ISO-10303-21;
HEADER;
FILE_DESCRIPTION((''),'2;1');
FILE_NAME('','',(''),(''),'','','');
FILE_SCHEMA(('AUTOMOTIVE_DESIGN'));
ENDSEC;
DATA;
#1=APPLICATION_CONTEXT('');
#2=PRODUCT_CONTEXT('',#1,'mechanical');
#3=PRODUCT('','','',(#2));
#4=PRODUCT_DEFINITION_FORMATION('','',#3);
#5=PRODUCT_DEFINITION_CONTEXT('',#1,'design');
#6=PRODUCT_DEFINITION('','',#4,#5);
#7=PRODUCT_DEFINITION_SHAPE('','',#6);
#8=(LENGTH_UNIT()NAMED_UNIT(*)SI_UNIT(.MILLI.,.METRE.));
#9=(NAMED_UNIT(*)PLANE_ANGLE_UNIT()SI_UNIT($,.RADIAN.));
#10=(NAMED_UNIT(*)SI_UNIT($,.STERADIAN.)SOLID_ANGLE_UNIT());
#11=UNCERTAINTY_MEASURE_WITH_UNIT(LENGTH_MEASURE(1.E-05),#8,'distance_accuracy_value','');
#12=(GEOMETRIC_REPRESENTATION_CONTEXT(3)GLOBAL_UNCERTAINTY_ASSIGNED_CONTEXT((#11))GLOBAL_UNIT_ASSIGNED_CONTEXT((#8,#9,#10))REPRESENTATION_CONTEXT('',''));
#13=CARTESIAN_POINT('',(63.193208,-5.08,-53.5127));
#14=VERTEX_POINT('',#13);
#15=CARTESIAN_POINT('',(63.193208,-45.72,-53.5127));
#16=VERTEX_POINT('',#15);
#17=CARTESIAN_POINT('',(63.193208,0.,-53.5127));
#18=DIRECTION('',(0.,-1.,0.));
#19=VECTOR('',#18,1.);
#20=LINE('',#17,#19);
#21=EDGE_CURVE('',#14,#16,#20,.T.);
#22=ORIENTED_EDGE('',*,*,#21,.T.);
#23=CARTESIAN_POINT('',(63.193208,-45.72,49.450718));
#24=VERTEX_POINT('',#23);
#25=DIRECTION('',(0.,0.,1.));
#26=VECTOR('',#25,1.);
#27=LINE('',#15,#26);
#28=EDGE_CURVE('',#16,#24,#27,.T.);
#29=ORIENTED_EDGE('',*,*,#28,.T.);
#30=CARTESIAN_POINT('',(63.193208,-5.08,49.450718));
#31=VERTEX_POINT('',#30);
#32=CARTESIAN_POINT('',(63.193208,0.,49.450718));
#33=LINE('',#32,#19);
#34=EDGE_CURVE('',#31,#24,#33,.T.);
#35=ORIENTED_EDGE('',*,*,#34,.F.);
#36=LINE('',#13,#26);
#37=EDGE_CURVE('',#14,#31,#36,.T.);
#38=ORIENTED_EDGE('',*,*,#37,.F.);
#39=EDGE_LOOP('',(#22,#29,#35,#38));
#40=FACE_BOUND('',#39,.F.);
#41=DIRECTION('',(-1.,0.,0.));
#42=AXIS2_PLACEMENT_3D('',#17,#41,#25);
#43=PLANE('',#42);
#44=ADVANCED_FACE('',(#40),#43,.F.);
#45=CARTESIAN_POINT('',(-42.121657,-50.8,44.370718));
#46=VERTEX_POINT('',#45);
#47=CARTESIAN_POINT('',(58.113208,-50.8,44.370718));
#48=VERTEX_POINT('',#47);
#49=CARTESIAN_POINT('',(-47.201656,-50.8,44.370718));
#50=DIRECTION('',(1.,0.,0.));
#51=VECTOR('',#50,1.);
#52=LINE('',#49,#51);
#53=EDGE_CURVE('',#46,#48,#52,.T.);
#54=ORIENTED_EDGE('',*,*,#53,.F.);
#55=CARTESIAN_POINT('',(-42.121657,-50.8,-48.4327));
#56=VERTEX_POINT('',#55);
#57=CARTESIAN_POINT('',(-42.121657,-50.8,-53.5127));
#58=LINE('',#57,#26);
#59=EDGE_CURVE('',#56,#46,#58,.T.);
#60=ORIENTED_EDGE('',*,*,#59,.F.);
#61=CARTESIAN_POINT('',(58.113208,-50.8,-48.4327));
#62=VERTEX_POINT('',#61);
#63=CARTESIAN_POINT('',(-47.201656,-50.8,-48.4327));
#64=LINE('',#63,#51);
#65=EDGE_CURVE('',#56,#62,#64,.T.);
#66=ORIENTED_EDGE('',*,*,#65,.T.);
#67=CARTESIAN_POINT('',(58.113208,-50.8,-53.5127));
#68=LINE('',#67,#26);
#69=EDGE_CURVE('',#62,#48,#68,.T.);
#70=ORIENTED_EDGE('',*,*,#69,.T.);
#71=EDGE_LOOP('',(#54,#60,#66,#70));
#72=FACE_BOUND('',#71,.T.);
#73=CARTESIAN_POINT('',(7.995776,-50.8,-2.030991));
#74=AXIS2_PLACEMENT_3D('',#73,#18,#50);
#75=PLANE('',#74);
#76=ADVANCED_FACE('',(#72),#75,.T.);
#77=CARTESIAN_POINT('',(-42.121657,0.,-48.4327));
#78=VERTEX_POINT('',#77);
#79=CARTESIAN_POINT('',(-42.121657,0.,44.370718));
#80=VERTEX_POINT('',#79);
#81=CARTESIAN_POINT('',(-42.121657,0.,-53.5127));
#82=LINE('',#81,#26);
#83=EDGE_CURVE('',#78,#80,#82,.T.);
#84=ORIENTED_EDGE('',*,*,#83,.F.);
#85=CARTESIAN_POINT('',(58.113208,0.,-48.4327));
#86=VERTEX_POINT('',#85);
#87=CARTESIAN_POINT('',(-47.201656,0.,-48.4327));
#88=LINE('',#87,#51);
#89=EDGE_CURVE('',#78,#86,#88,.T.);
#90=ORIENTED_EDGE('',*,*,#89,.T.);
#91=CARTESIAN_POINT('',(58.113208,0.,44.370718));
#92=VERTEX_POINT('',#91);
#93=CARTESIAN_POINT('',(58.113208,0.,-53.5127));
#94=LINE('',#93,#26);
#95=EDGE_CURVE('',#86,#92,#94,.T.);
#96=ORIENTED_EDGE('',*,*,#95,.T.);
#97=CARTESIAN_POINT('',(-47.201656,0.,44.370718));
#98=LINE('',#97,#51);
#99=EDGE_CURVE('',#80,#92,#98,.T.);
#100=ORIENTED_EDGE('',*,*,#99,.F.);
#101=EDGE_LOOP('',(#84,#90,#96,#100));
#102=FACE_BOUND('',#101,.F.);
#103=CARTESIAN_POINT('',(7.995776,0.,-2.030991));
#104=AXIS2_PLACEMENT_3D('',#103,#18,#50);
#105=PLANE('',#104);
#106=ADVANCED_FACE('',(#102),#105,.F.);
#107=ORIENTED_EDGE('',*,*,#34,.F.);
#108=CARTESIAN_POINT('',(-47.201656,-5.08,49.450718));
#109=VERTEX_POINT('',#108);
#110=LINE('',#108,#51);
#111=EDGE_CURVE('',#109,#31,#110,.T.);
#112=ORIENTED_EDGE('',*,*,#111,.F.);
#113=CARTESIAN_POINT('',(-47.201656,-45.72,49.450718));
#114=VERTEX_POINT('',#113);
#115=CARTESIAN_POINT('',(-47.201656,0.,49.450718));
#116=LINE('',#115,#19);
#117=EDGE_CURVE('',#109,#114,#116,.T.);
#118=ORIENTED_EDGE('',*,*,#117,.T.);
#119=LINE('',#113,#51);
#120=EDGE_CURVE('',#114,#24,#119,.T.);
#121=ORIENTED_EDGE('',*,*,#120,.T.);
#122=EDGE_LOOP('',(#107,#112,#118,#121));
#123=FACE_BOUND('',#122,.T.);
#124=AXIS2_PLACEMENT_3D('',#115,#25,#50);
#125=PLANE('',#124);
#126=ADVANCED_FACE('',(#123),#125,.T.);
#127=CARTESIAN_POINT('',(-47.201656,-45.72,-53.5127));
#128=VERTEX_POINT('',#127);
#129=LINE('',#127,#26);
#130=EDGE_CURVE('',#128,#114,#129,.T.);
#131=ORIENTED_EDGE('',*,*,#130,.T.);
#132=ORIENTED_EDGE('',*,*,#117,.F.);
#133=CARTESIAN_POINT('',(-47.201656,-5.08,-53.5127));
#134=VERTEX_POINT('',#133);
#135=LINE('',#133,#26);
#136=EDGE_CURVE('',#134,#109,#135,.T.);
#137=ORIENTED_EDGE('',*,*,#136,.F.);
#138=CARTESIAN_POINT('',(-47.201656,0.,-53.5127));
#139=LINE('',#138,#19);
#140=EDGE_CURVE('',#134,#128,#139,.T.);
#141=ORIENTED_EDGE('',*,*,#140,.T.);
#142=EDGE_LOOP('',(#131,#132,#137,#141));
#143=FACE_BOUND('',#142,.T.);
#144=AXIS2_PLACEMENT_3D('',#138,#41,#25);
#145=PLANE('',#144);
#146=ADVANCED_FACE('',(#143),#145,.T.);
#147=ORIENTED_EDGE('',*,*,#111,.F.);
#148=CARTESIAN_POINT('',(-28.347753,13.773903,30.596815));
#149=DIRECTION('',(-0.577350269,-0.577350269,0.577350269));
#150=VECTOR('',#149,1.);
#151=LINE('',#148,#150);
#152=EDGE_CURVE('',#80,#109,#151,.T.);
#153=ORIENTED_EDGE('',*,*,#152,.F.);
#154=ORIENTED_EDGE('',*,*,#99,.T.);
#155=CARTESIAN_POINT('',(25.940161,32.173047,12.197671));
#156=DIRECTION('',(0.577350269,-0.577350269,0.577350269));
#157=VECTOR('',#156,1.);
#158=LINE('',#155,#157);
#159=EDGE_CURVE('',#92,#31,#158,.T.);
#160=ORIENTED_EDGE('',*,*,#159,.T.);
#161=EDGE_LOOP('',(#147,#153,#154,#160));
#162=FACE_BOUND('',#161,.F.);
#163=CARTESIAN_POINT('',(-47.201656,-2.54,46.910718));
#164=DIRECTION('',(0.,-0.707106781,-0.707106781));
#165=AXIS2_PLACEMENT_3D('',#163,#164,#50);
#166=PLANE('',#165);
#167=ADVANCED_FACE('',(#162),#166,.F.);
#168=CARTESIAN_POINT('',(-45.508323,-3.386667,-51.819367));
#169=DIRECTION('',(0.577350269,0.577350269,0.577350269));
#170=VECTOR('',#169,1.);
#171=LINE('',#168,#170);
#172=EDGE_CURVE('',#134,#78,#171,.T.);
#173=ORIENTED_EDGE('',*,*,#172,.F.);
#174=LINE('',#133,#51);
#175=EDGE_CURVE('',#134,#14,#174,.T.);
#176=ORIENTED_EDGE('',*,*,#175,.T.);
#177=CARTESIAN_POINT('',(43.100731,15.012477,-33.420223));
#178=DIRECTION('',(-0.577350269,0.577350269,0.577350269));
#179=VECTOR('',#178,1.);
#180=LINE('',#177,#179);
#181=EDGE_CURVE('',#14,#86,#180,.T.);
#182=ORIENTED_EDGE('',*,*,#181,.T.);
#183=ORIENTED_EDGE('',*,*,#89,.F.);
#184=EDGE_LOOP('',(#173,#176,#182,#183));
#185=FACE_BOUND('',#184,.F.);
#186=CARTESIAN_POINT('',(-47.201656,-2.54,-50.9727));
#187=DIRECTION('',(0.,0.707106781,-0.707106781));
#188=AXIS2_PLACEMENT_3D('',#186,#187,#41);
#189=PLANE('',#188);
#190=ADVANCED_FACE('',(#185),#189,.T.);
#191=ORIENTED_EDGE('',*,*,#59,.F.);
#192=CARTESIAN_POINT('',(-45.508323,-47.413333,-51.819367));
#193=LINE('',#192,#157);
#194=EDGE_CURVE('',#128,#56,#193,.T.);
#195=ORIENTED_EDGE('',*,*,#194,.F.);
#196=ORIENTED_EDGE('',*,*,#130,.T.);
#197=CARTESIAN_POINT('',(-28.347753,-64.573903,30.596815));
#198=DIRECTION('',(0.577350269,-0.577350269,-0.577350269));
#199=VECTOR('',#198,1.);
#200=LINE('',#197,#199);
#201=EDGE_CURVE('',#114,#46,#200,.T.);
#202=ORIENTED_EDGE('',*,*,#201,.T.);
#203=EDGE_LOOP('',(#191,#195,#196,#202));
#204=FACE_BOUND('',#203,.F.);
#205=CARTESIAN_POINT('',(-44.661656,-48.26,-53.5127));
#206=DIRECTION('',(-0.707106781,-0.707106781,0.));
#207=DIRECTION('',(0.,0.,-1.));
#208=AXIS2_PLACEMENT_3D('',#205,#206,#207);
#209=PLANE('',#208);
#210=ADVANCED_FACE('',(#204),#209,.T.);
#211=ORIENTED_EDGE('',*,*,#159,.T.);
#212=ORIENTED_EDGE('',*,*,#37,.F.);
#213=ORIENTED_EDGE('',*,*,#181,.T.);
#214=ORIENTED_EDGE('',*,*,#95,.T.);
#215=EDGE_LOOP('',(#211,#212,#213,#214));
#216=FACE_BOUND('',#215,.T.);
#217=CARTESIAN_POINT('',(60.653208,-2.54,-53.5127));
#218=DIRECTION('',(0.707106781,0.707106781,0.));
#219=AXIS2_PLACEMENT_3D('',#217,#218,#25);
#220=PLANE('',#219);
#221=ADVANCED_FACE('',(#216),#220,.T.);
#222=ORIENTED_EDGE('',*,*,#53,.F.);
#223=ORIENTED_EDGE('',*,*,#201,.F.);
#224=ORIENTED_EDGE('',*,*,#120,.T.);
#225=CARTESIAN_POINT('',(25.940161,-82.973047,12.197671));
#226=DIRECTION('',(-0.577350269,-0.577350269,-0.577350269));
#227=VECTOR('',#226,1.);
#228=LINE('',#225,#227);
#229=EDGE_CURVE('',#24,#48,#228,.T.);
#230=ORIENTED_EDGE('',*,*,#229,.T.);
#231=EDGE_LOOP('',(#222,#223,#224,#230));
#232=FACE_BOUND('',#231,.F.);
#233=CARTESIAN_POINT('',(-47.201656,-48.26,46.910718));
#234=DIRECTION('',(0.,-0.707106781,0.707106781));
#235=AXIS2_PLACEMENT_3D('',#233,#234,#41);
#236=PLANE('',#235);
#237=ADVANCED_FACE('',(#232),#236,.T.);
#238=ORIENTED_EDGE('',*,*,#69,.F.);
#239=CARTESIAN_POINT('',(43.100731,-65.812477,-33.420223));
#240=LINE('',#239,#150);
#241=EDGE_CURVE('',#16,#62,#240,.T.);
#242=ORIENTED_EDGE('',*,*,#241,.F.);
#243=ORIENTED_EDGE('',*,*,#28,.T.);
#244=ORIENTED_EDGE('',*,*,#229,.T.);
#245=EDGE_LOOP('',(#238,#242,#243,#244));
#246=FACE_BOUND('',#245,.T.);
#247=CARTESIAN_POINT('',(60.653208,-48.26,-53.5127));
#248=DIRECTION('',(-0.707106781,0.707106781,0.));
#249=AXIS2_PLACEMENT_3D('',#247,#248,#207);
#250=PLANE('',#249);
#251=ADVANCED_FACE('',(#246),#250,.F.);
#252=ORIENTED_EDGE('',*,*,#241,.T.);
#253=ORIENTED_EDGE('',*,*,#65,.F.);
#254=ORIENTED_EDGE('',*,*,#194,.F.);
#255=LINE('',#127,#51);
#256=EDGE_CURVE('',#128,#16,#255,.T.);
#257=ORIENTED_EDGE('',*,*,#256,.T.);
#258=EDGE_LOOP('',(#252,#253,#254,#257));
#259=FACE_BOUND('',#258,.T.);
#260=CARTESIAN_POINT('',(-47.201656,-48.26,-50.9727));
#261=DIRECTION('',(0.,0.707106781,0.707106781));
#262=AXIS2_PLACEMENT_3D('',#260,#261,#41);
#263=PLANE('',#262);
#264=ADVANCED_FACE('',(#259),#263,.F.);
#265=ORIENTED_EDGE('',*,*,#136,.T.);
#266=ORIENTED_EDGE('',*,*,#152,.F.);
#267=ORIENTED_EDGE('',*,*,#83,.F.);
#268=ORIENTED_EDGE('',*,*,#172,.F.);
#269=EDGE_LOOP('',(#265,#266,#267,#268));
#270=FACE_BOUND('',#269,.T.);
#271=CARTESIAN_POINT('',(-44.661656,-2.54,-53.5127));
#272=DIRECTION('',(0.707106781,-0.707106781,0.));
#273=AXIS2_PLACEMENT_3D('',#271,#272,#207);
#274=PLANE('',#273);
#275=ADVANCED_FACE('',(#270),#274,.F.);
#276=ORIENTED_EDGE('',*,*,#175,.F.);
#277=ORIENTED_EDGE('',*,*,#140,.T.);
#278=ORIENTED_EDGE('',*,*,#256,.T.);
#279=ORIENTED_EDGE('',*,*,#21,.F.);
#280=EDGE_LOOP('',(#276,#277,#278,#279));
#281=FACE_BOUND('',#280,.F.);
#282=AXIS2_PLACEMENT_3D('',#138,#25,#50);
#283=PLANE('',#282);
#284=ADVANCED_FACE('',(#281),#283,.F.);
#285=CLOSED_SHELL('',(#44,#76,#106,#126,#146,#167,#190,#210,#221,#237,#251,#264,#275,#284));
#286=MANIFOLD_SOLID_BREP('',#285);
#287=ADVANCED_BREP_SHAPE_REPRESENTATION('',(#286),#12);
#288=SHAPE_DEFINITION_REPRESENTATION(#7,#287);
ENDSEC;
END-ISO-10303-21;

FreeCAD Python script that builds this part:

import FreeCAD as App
import Part
import Sketcher
from FreeCAD import Vector


def edges_at(feature, points):
    """Names of the edges that pass closest to the given points."""
    edges = feature.Shape.Edges
    near = lambda p: min(range(len(edges)), key=lambda i: edges[i].distToShape(Part.Vertex(*p))[0])
    return sorted({f"Edge{near(p) + 1}" for p in points})


def add_polygon(sketch, points):
    """Adds a closed chain of lines whose ends are joined by coincident constraints."""
    first, n = sketch.GeometryCount, len(points)
    for a, b in zip(points, points[1:] + points[:1]):
        sketch.addGeometry(Part.LineSegment(App.Vector(*a, 0), App.Vector(*b, 0)), False)
    for i in range(n):
        sketch.addConstraint(Sketcher.Constraint("Coincident", first + i, 2, first + (i + 1) % n, 1))

doc = App.newDocument("Part")
params = doc.addObject("Spreadsheet::Sheet", "Params")
for row, (alias, value) in enumerate([
    ("pad1_length", "2 in"),
    ("chamfer_size", "0.2 in"),
    ("chamfer2_size", "0.2 in"),
    ("chamfer2_size2", "0.2 in"),
], start=1):
    params.set(f"A{row}", alias)
    params.set(f"B{row}", "=" + value)
    params.setAlias(f"B{row}", alias)

body = doc.addObject("PartDesign::Body", "Body")

sketch1 = doc.addObject("Sketcher::SketchObject", "Sketch")
body.addObject(sketch1)
sketch1.AttachmentSupport = (doc.XZ_Plane, [""])
sketch1.MapMode = "FlatFace"
add_polygon(sketch1, [(-47.201656, 49.450718), (-47.201656, -53.5127), (63.193208, -53.5127), (63.193208, 49.450718)])
sketch1.addConstraint(Sketcher.Constraint("Vertical", 0))
sketch1.addConstraint(Sketcher.Constraint("Horizontal", 1))
sketch1.addConstraint(Sketcher.Constraint("Vertical", 2))
sketch1.addConstraint(Sketcher.Constraint("Horizontal", 3))
sketch1.addConstraint(Sketcher.Constraint("DistanceY", 0, 2, 0, 1, 102.963418))
sketch1.addConstraint(Sketcher.Constraint("DistanceY", 0, 2, -1, 1, 53.5127))
sketch1.addConstraint(Sketcher.Constraint("DistanceX", 1, 1, 1, 2, 110.394865))
sketch1.addConstraint(Sketcher.Constraint("DistanceX", -1, 1, 1, 2, 63.193208))
pad1 = doc.addObject("PartDesign::Pad", "Pad")
body.addObject(pad1)
pad1.Profile = sketch1
pad1.setExpression("Length", "Params.pad1_length")
doc.recompute()

chamfer = doc.addObject("PartDesign::Chamfer", "Chamfer")
body.addObject(chamfer)
chamfer.Base = (pad1, edges_at(pad1, [
    (7.996, -50.8, 49.451),
    (-47.202, -50.8, -2.031),
    (7.996, -50.8, -53.513),
    (63.193, -50.8, -2.031),
]))
chamfer.setExpression("Size", "Params.chamfer_size")
doc.recompute()

chamfer2 = doc.addObject("PartDesign::Chamfer", "Chamfer001")
body.addObject(chamfer2)
chamfer2.Base = (chamfer, edges_at(chamfer, [
    (7.996, 0, 49.451),
    (-47.202, 0, -2.031),
    (7.996, 0, -53.513),
    (63.193, 0, -2.031),
]))
chamfer2.ChamferType = "Two distances"
chamfer2.setExpression("Size", "Params.chamfer2_size")
chamfer2.setExpression("Size2", "Params.chamfer2_size2")

doc.recompute()
